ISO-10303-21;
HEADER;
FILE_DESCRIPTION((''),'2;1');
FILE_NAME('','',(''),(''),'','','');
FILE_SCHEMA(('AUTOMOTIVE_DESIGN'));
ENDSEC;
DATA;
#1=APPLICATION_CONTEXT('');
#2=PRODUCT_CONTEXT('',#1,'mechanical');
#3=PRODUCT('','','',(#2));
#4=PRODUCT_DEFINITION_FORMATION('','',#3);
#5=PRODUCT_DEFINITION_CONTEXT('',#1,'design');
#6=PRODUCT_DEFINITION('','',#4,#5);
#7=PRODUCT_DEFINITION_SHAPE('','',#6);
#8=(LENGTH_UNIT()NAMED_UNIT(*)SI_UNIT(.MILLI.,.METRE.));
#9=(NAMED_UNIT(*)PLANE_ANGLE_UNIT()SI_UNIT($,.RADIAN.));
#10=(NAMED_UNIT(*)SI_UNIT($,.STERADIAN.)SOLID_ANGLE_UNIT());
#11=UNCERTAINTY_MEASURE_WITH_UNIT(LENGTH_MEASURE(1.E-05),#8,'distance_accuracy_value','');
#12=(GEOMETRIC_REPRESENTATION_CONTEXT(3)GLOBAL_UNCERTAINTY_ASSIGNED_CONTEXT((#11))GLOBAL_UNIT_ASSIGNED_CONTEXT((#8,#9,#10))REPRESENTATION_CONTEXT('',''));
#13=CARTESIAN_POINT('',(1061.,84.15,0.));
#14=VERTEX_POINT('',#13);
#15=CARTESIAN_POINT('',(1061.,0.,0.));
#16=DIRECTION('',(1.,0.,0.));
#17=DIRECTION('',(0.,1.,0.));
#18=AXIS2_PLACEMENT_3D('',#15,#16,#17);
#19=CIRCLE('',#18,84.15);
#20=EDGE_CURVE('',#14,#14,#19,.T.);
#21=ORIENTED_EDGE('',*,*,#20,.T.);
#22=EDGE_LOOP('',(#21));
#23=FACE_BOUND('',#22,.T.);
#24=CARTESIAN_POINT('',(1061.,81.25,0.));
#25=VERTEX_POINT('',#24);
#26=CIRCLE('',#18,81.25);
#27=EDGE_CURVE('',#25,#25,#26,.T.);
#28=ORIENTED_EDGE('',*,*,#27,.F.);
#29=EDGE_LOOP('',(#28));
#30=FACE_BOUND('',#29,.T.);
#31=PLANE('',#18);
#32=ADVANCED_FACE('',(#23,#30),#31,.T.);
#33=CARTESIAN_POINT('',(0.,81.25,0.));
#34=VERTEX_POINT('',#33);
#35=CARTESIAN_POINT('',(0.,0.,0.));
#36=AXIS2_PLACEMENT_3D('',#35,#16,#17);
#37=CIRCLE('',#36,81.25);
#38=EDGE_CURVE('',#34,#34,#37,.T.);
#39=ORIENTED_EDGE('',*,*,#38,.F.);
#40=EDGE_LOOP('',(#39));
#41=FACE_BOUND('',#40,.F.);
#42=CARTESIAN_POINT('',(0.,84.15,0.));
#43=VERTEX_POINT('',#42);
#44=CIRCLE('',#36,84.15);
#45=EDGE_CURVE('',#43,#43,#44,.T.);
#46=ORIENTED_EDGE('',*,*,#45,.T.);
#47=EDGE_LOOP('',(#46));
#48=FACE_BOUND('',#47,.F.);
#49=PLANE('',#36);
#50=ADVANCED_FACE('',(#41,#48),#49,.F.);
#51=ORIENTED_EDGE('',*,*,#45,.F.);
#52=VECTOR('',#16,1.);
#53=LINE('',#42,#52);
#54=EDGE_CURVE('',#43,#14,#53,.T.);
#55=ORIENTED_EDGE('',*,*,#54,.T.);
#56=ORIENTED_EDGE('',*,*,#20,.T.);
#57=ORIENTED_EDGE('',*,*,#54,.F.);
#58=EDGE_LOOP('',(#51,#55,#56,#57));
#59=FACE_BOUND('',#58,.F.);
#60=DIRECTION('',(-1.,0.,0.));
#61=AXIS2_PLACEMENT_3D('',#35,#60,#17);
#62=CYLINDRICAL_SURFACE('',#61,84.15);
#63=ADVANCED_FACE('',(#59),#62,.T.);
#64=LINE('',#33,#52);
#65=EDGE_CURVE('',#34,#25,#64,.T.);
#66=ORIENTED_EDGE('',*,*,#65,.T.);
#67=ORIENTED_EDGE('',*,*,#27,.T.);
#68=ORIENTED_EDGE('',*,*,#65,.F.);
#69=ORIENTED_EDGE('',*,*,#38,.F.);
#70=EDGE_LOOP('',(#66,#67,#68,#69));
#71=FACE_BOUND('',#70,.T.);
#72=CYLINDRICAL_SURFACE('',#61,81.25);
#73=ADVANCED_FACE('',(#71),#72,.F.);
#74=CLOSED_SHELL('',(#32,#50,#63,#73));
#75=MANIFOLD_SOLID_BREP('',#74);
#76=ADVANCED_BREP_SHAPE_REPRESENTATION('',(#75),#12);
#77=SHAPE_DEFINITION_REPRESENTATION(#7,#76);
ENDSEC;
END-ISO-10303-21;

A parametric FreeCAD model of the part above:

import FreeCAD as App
import Part
import Sketcher

V = App.Vector
Q = App.Units.Quantity

doc = App.newDocument("Part")
params = doc.addObject("Spreadsheet::Sheet", "Params")
for row, (alias, value) in enumerate([
    ("sketch1_diameter", "168.3 mm"),
    ("sketch1_diameter2", "162.5 mm"),
    ("pad1_length", "1061 mm"),
], start=1):
    params.set(f"A{row}", alias)
    params.set(f"B{row}", "=" + value)
    params.setAlias(f"B{row}", alias)

body = doc.addObject("PartDesign::Body", "Body")

# Sketch on YZ plane
sketch1 = body.newObject("Sketcher::SketchObject", "Sketch")
sketch1.AttachmentSupport = (doc.getObject("YZ_Plane"), [""])
sketch1.MapMode = "FlatFace"
sketch1.addGeometry([
    Part.Circle(V(0, 0, 0), V(0, 0, 1), 84),
    Part.Circle(V(0, 0, 0), V(0, 0, 1), 81),
], False)
sketch1.addConstraint([
    Sketcher.Constraint("Coincident", 0, 3, -1, 1),
    Sketcher.Constraint("Coincident", 1, 3, -1, 1),
    Sketcher.Constraint("Diameter", 0, Q("168.3 mm")),
    Sketcher.Constraint("Diameter", 1, Q("162.5 mm")),
])
sketch1.setExpression("Constraints[2]", "Params.sketch1_diameter")
sketch1.setExpression("Constraints[3]", "Params.sketch1_diameter2")
pad1 = body.newObject("PartDesign::Pad", "Pad")
pad1.Profile = sketch1
pad1.setExpression("Length", "Params.pad1_length")

doc.recompute()
